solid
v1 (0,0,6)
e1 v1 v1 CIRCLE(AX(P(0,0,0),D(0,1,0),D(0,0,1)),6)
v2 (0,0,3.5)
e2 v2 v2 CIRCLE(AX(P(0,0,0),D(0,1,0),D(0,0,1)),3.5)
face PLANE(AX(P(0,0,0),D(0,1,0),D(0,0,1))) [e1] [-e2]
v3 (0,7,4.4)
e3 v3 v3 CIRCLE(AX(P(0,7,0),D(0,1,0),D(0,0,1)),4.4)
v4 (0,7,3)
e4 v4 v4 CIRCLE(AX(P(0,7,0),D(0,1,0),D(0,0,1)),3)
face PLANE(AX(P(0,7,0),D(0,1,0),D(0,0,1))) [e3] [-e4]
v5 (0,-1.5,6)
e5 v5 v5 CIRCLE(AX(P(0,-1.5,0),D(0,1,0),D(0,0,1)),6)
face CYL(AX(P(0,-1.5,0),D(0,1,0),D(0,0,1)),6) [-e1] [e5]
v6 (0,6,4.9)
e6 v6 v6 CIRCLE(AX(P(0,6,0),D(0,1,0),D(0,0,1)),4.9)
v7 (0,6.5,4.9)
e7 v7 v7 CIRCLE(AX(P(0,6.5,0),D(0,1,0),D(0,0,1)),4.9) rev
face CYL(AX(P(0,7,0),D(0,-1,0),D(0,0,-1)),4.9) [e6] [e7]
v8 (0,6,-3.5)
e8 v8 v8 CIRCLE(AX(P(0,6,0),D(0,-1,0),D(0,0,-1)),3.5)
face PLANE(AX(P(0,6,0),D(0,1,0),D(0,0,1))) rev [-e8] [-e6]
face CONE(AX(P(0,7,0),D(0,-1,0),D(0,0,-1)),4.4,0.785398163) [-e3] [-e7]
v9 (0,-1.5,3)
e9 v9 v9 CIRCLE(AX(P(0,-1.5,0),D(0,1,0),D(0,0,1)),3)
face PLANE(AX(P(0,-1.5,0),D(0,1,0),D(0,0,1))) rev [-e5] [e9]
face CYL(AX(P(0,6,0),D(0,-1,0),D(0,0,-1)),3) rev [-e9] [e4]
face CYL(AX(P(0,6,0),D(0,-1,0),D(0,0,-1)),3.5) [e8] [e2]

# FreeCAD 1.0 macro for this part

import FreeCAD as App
import Part
import Sketcher


def edges_at(feature, points):
    """Names of the edges that pass closest to the given points."""
    edges = feature.Shape.Edges
    near = lambda p: min(range(len(edges)), key=lambda i: edges[i].distToShape(Part.Vertex(*p))[0])
    return sorted({f"Edge{near(p) + 1}" for p in points})

doc = App.newDocument("Part")
body = doc.addObject("PartDesign::Body", "Body")

# Sketch on XZ plane
sketch1 = body.newObject("Sketcher::SketchObject", "Sketch")
sketch1.AttachmentSupport = (doc.getObject("XZ_Plane"), [""])
sketch1.MapMode = "FlatFace"
sketch1.addGeometry(Part.Circle(App.Vector(0, 0, 0), App.Vector(0, 0, 1), 6), False)
sketch1.addConstraint(Sketcher.Constraint("Coincident", 0, 3, -1, 1))
sketch1.addConstraint(Sketcher.Constraint("Diameter", 0, 12.0))
pad1 = body.newObject("PartDesign::Pad", "Pad")
pad1.Profile = sketch1
pad1.Length = 1.5

# Sketch on XZ plane
sketch2 = body.newObject("Sketcher::SketchObject", "Sketch001")
sketch2.AttachmentSupport = (doc.getObject("XZ_Plane"), [""])
sketch2.MapMode = "FlatFace"
sketch2.addGeometry(Part.Circle(App.Vector(0, 0, 0), App.Vector(0, 0, 1), 3.5), False)
sketch2.addConstraint(Sketcher.Constraint("Coincident", 0, 3, -1, 1))
sketch2.addConstraint(Sketcher.Constraint("Diameter", 0, 7.0))
pad2 = body.newObject("PartDesign::Pad", "Pad001")
pad2.Profile = sketch2
pad2.Length = 6
pad2.Reversed = True

# Sketch on XZ plane
sketch3 = body.newObject("Sketcher::SketchObject", "Sketch002")
sketch3.AttachmentSupport = (doc.getObject("XZ_Plane"), [""])
sketch3.MapMode = "FlatFace"
sketch3.AttachmentOffset = App.Placement(App.Vector(0, 0, 1.5), App.Rotation())
sketch3.addGeometry(Part.Circle(App.Vector(0, 0, 0), App.Vector(0, 0, 1), 3), False)
sketch3.addConstraint(Sketcher.Constraint("Coincident", 0, 3, -1, 1))
sketch3.addConstraint(Sketcher.Constraint("Diameter", 0, 6.0))
pocket1 = body.newObject("PartDesign::Pocket", "Pocket")
pocket1.Profile = sketch3
pocket1.Type = "ThroughAll"

# Sketch on XZ plane
sketch4 = body.newObject("Sketcher::SketchObject", "Sketch003")
sketch4.AttachmentSupport = (doc.getObject("XZ_Plane"), [""])
sketch4.MapMode = "FlatFace"
sketch4.AttachmentOffset = App.Placement(App.Vector(0, 0, -6), App.Rotation())
sketch4.addGeometry(Part.Circle(App.Vector(0, 0, 0), App.Vector(0, 0, 1), 4.9), False)
sketch4.addGeometry(Part.Circle(App.Vector(0, 0, 0), App.Vector(0, 0, 1), 3), False)
sketch4.addConstraint(Sketcher.Constraint("Coincident", 0, 3, -1, 1))
sketch4.addConstraint(Sketcher.Constraint("Coincident", 1, 3, -1, 1))
sketch4.addConstraint(Sketcher.Constraint("Diameter", 1, 6.0))
sketch4.addConstraint(Sketcher.Constraint("Diameter", 0, 9.8))
pad3 = body.newObject("PartDesign::Pad", "Pad002")
pad3.Profile = sketch4
pad3.Length = 1
pad3.Reversed = True
doc.recompute()

chamfer = body.newObject("PartDesign::Chamfer", "Chamfer")
chamfer.Base = (pad3, edges_at(pad3, [(0, 7, -4.9)]))
chamfer.Size = 0.5

doc.recompute()
